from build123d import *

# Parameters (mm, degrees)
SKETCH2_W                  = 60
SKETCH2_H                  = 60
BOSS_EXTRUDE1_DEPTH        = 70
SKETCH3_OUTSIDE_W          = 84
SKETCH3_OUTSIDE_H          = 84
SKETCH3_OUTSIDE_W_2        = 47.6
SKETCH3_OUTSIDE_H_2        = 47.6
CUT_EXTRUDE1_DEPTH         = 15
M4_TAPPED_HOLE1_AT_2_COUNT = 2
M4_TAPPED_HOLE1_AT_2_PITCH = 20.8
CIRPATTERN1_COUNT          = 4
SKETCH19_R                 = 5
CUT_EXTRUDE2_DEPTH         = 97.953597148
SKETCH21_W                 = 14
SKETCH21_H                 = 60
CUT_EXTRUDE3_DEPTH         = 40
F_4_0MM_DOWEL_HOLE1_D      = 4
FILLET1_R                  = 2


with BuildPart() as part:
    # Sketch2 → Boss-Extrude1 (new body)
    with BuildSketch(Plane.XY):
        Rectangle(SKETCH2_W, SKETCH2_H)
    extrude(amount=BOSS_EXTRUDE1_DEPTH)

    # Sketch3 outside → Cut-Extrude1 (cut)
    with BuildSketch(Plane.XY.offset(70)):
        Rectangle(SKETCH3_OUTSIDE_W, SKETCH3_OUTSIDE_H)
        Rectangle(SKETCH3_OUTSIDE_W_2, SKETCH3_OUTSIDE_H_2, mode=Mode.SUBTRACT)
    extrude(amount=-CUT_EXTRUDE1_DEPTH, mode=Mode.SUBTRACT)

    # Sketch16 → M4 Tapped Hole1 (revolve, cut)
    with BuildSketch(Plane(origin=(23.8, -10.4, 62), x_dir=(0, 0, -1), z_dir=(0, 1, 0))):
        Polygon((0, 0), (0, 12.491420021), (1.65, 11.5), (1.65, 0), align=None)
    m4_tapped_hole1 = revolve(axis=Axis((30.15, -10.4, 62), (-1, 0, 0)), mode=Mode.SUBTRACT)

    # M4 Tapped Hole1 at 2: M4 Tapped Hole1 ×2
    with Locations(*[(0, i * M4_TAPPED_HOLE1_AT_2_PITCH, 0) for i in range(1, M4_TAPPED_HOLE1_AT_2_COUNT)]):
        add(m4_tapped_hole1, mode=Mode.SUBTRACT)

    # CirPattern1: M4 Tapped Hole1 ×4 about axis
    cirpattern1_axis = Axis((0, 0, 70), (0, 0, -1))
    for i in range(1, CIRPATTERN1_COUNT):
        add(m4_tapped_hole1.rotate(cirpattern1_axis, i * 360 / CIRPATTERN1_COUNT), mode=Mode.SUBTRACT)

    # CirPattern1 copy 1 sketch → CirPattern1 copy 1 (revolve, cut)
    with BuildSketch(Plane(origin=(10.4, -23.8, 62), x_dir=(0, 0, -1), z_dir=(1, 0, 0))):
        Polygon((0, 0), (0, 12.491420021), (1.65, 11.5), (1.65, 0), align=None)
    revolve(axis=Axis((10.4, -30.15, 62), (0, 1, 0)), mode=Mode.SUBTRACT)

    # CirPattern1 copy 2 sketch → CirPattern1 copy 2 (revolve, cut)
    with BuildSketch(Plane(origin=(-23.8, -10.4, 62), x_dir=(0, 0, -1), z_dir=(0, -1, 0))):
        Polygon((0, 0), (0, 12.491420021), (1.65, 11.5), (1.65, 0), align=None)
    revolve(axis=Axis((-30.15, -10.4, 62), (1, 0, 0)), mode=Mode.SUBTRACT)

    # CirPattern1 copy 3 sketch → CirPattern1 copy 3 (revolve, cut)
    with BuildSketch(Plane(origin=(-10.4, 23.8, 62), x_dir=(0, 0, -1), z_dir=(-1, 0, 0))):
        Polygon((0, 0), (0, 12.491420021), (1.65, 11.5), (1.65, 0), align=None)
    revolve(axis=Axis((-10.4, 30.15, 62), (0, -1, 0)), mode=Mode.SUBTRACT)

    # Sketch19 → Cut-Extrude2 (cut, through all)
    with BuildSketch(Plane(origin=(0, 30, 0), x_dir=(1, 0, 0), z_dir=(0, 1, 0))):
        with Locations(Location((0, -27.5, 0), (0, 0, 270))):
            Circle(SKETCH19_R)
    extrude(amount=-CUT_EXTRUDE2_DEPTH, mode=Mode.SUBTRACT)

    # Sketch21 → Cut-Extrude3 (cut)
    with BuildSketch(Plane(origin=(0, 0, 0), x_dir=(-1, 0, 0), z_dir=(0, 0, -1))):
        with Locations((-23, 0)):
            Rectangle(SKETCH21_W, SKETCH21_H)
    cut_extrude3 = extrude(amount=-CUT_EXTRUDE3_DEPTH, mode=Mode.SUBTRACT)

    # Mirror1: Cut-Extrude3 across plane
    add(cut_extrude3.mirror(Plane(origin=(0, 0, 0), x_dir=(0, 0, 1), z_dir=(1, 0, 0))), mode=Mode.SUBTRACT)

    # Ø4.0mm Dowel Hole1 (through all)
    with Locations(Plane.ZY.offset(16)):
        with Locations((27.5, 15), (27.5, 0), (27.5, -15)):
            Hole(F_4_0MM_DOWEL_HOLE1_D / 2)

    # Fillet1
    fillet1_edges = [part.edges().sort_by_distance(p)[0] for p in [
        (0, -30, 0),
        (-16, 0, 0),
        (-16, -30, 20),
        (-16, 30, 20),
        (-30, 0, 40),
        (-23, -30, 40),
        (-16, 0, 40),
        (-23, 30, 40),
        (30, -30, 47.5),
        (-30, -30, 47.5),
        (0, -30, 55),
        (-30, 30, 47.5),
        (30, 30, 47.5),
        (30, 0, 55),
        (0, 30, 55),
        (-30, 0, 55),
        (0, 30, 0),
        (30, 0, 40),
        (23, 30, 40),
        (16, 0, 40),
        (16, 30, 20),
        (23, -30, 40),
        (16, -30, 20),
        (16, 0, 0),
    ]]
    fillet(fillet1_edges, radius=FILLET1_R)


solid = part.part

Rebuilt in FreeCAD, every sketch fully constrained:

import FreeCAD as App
import Part
import Sketcher

V = App.Vector
Q = App.Units.Quantity


def edges_at(feature, points):
    """Names of the edges that pass closest to the given points."""
    edges = feature.Shape.Edges
    near = lambda p: min(range(len(edges)), key=lambda i: edges[i].distToShape(Part.Vertex(*p))[0])
    return sorted({f"Edge{near(p) + 1}" for p in points})

doc = App.newDocument("Part")
body = doc.addObject("PartDesign::Body", "Body")

# Sketch on XY plane
sketch1 = body.newObject("Sketcher::SketchObject", "Sketch")
sketch1.AttachmentSupport = (doc.getObject("XY_Plane"), [""])
sketch1.MapMode = "FlatFace"
sketch1.addGeometry(Part.LineSegment(V(-30, 30, 0), V(-30, -30, 0)), False)
sketch1.addGeometry(Part.LineSegment(V(-30, -30, 0), V(30, -30, 0)), False)
sketch1.addGeometry(Part.LineSegment(V(30, -30, 0), V(30, 30, 0)), False)
sketch1.addGeometry(Part.LineSegment(V(30, 30, 0), V(-30, 30, 0)), False)
sketch1.addConstraint(Sketcher.Constraint("Coincident", 0, 2, 1, 1))
sketch1.addConstraint(Sketcher.Constraint("Coincident", 1, 2, 2, 1))
sketch1.addConstraint(Sketcher.Constraint("Coincident", 2, 2, 3, 1))
sketch1.addConstraint(Sketcher.Constraint("Coincident", 3, 2, 0, 1))
sketch1.addConstraint(Sketcher.Constraint("Vertical", 0))
sketch1.addConstraint(Sketcher.Constraint("Horizontal", 1))
sketch1.addConstraint(Sketcher.Constraint("Vertical", 2))
sketch1.addConstraint(Sketcher.Constraint("Horizontal", 3))
sketch1.addConstraint(Sketcher.Constraint("Symmetric", 0, 2, 2, 2, -1, 1))
sketch1.addConstraint(Sketcher.Constraint("Equal", 3, 0))
sketch1.addConstraint(Sketcher.Constraint("DistanceX", 1, 1, 1, 2, 60.0))
pad1 = body.newObject("PartDesign::Pad", "Pad")
pad1.Profile = sketch1
pad1.Length = 70

# Sketch on XY plane
sketch2 = body.newObject("Sketcher::SketchObject", "Sketch001")
sketch2.AttachmentSupport = (doc.getObject("XY_Plane"), [""])
sketch2.MapMode = "FlatFace"
sketch2.AttachmentOffset = App.Placement(V(0, 0, 70), App.Rotation())
sketch2.addGeometry(Part.LineSegment(V(-42, 42, 0), V(-42, -42, 0)), False)
sketch2.addGeometry(Part.LineSegment(V(-42, -42, 0), V(42, -42, 0)), False)
sketch2.addGeometry(Part.LineSegment(V(42, -42, 0), V(42, 42, 0)), False)
sketch2.addGeometry(Part.LineSegment(V(42, 42, 0), V(-42, 42, 0)), False)
sketch2.addGeometry(Part.LineSegment(V(24, -24, 0), V(-24, -24, 0)), False)
sketch2.addGeometry(Part.LineSegment(V(-24, -24, 0), V(-24, 24, 0)), False)
sketch2.addGeometry(Part.LineSegment(V(-24, 24, 0), V(24, 24, 0)), False)
sketch2.addGeometry(Part.LineSegment(V(24, 24, 0), V(24, -24, 0)), False)
sketch2.addConstraint(Sketcher.Constraint("Coincident", 0, 2, 1, 1))
sketch2.addConstraint(Sketcher.Constraint("Coincident", 1, 2, 2, 1))
sketch2.addConstraint(Sketcher.Constraint("Coincident", 2, 2, 3, 1))
sketch2.addConstraint(Sketcher.Constraint("Coincident", 3, 2, 0, 1))
sketch2.addConstraint(Sketcher.Constraint("Coincident", 4, 2, 5, 1))
sketch2.addConstraint(Sketcher.Constraint("Coincident", 5, 2, 6, 1))
sketch2.addConstraint(Sketcher.Constraint("Coincident", 6, 2, 7, 1))
sketch2.addConstraint(Sketcher.Constraint("Coincident", 7, 2, 4, 1))
sketch2.addConstraint(Sketcher.Constraint("Vertical", 0))
sketch2.addConstraint(Sketcher.Constraint("Horizontal", 1))
sketch2.addConstraint(Sketcher.Constraint("Vertical", 2))
sketch2.addConstraint(Sketcher.Constraint("Horizontal", 3))
sketch2.addConstraint(Sketcher.Constraint("Horizontal", 4))
sketch2.addConstraint(Sketcher.Constraint("Vertical", 5))
sketch2.addConstraint(Sketcher.Constraint("Horizontal", 6))
sketch2.addConstraint(Sketcher.Constraint("Vertical", 7))
sketch2.addConstraint(Sketcher.Constraint("Symmetric", 0, 2, 2, 2, -1, 1))
sketch2.addConstraint(Sketcher.Constraint("Symmetric", 4, 2, 6, 2, -1, 1))
sketch2.addConstraint(Sketcher.Constraint("Equal", 3, 0))
sketch2.addConstraint(Sketcher.Constraint("Equal", 6, 5))
sketch2.addConstraint(Sketcher.Constraint("DistanceX", 1, 1, 1, 2, 84.0))
sketch2.addConstraint(Sketcher.Constraint("DistanceX", 4, 2, 4, 1, 47.6))
pocket1 = body.newObject("PartDesign::Pocket", "Pocket")
pocket1.Profile = sketch2
pocket1.Length = 15

# Sketch on XZ plane
sketch3 = body.newObject("Sketcher::SketchObject", "Sketch002")
sketch3.AttachmentSupport = (doc.getObject("XZ_Plane"), [""])
sketch3.MapMode = "FlatFace"
sketch3.AttachmentOffset = App.Placement(V(0, 0, 10.4), App.Rotation())
sketch3.addGeometry(Part.LineSegment(V(11.3, 62, 0), V(23.8, 62, 0)), False)
sketch3.addGeometry(Part.LineSegment(V(23.8, 62, 0), V(23.8, 60.4, 0)), False)
sketch3.addGeometry(Part.LineSegment(V(23.8, 60.4, 0), V(12.3, 60.4, 0)), False)
sketch3.addGeometry(Part.LineSegment(V(12.3, 60.4, 0), V(11.3, 62, 0)), False)
sketch3.addGeometry(Part.LineSegment(V(23.8, 62, 0), V(11.3, 62, 0)), True)  # axis
sketch3.addConstraint(Sketcher.Constraint("Coincident", 0, 2, 1, 1))
sketch3.addConstraint(Sketcher.Constraint("Coincident", 1, 2, 2, 1))
sketch3.addConstraint(Sketcher.Constraint("Coincident", 2, 2, 3, 1))
sketch3.addConstraint(Sketcher.Constraint("Coincident", 3, 2, 0, 1))
sketch3.addConstraint(Sketcher.Constraint("Horizontal", 0))
sketch3.addConstraint(Sketcher.Constraint("Vertical", 1))
sketch3.addConstraint(Sketcher.Constraint("Horizontal", 2))
sketch3.addConstraint(Sketcher.Constraint("Horizontal", 4))
sketch3.addConstraint(Sketcher.Constraint("Coincident", 4, 1, 0, 2))
sketch3.addConstraint(Sketcher.Constraint("Equal", 0, 4))
sketch3.addConstraint(Sketcher.Constraint("Angle", 3, Q("121 deg")))
sketch3.addConstraint(Sketcher.Constraint("DistanceX", 2, 2, 2, 1, 11.5))
sketch3.addConstraint(Sketcher.Constraint("DistanceY", -1, 1, 0, 2, 62.0))
sketch3.addConstraint(Sketcher.Constraint("DistanceY", 1, 2, 1, 1, 1.65))
sketch3.addConstraint(Sketcher.Constraint("DistanceX", -1, 1, 0, 2, 23.8))
groove = body.newObject("PartDesign::Groove", "Groove")
groove.Profile = sketch3
groove.ReferenceAxis = (sketch3, ["Axis0"])
groove.Angle = 360
doc.recompute()

linearpattern = body.newObject("PartDesign::LinearPattern", "LinearPattern")
linearpattern.Originals = [groove]
linearpattern.Direction = (doc.getObject("Y_Axis"), [""])
linearpattern.Mode = "offset"
linearpattern.Offset = 20.8
linearpattern.Occurrences = 2
body.Tip = linearpattern
doc.recompute()

polarpattern = body.newObject("PartDesign::PolarPattern", "PolarPattern")
polarpattern.Originals = [groove]
polarpattern.Axis = (doc.getObject("Z_Axis"), [""])
polarpattern.Angle = 360
polarpattern.Occurrences = 4
body.Tip = polarpattern

# Sketch on YZ plane
sketch4 = body.newObject("Sketcher::SketchObject", "Sketch003")
sketch4.AttachmentSupport = (doc.getObject("YZ_Plane"), [""])
sketch4.MapMode = "FlatFace"
sketch4.AttachmentOffset = App.Placement(V(0, 0, 10.4), App.Rotation())
sketch4.addGeometry(Part.LineSegment(V(-11.3, 62, 0), V(-23.8, 62, 0)), False)
sketch4.addGeometry(Part.LineSegment(V(-23.8, 62, 0), V(-23.8, 60.4, 0)), False)
sketch4.addGeometry(Part.LineSegment(V(-23.8, 60.4, 0), V(-12.3, 60.4, 0)), False)
sketch4.addGeometry(Part.LineSegment(V(-12.3, 60.4, 0), V(-11.3, 62, 0)), False)
sketch4.addGeometry(Part.LineSegment(V(-23.8, 62, 0), V(-11.3, 62, 0)), True)  # axis
sketch4.addConstraint(Sketcher.Constraint("Coincident", 0, 2, 1, 1))
sketch4.addConstraint(Sketcher.Constraint("Coincident", 1, 2, 2, 1))
sketch4.addConstraint(Sketcher.Constraint("Coincident", 2, 2, 3, 1))
sketch4.addConstraint(Sketcher.Constraint("Coincident", 3, 2, 0, 1))
sketch4.addConstraint(Sketcher.Constraint("Horizontal", 0))
sketch4.addConstraint(Sketcher.Constraint("Vertical", 1))
sketch4.addConstraint(Sketcher.Constraint("Horizontal", 2))
sketch4.addConstraint(Sketcher.Constraint("Horizontal", 4))
sketch4.addConstraint(Sketcher.Constraint("Coincident", 4, 1, 0, 2))
sketch4.addConstraint(Sketcher.Constraint("Equal", 0, 4))
sketch4.addConstraint(Sketcher.Constraint("Angle", 3, Q("59 deg")))
sketch4.addConstraint(Sketcher.Constraint("DistanceX", 2, 1, 2, 2, 11.5))
sketch4.addConstraint(Sketcher.Constraint("DistanceY", -1, 1, 0, 2, 62.0))
sketch4.addConstraint(Sketcher.Constraint("DistanceY", 1, 2, 1, 1, 1.65))
sketch4.addConstraint(Sketcher.Constraint("DistanceX", 0, 2, -1, 1, 23.8))
groove2 = body.newObject("PartDesign::Groove", "Groove001")
groove2.Profile = sketch4
groove2.ReferenceAxis = (sketch4, ["Axis0"])
groove2.Angle = 360

# Sketch on XZ plane
sketch5 = body.newObject("Sketcher::SketchObject", "Sketch004")
sketch5.AttachmentSupport = (doc.getObject("XZ_Plane"), [""])
sketch5.MapMode = "FlatFace"
sketch5.AttachmentOffset = App.Placement(V(0, 0, 10.4), App.Rotation())
sketch5.addGeometry(Part.LineSegment(V(-11.3, 62, 0), V(-23.8, 62, 0)), False)
sketch5.addGeometry(Part.LineSegment(V(-23.8, 62, 0), V(-23.8, 60.4, 0)), False)
sketch5.addGeometry(Part.LineSegment(V(-23.8, 60.4, 0), V(-12.3, 60.4, 0)), False)
sketch5.addGeometry(Part.LineSegment(V(-12.3, 60.4, 0), V(-11.3, 62, 0)), False)
sketch5.addGeometry(Part.LineSegment(V(-23.8, 62, 0), V(-11.3, 62, 0)), True)  # axis
sketch5.addConstraint(Sketcher.Constraint("Coincident", 0, 2, 1, 1))
sketch5.addConstraint(Sketcher.Constraint("Coincident", 1, 2, 2, 1))
sketch5.addConstraint(Sketcher.Constraint("Coincident", 2, 2, 3, 1))
sketch5.addConstraint(Sketcher.Constraint("Coincident", 3, 2, 0, 1))
sketch5.addConstraint(Sketcher.Constraint("Horizontal", 0))
sketch5.addConstraint(Sketcher.Constraint("Vertical", 1))
sketch5.addConstraint(Sketcher.Constraint("Horizontal", 2))
sketch5.addConstraint(Sketcher.Constraint("Horizontal", 4))
sketch5.addConstraint(Sketcher.Constraint("Coincident", 4, 1, 0, 2))
sketch5.addConstraint(Sketcher.Constraint("Equal", 0, 4))
sketch5.addConstraint(Sketcher.Constraint("Angle", 3, Q("59 deg")))
sketch5.addConstraint(Sketcher.Constraint("DistanceX", 2, 1, 2, 2, 11.5))
sketch5.addConstraint(Sketcher.Constraint("DistanceY", -1, 1, 0, 2, 62.0))
sketch5.addConstraint(Sketcher.Constraint("DistanceY", 1, 2, 1, 1, 1.65))
sketch5.addConstraint(Sketcher.Constraint("DistanceX", 0, 2, -1, 1, 23.8))
groove3 = body.newObject("PartDesign::Groove", "Groove002")
groove3.Profile = sketch5
groove3.ReferenceAxis = (sketch5, ["Axis0"])
groove3.Angle = 360

# Sketch on YZ plane
sketch6 = body.newObject("Sketcher::SketchObject", "Sketch005")
sketch6.AttachmentSupport = (doc.getObject("YZ_Plane"), [""])
sketch6.MapMode = "FlatFace"
sketch6.AttachmentOffset = App.Placement(V(0, 0, -10.4), App.Rotation())
sketch6.addGeometry(Part.LineSegment(V(11.3, 62, 0), V(23.8, 62, 0)), False)
sketch6.addGeometry(Part.LineSegment(V(23.8, 62, 0), V(23.8, 60.4, 0)), False)
sketch6.addGeometry(Part.LineSegment(V(23.8, 60.4, 0), V(12.3, 60.4, 0)), False)
sketch6.addGeometry(Part.LineSegment(V(12.3, 60.4, 0), V(11.3, 62, 0)), False)
sketch6.addGeometry(Part.LineSegment(V(23.8, 62, 0), V(11.3, 62, 0)), True)  # axis
sketch6.addConstraint(Sketcher.Constraint("Coincident", 0, 2, 1, 1))
sketch6.addConstraint(Sketcher.Constraint("Coincident", 1, 2, 2, 1))
sketch6.addConstraint(Sketcher.Constraint("Coincident", 2, 2, 3, 1))
sketch6.addConstraint(Sketcher.Constraint("Coincident", 3, 2, 0, 1))
sketch6.addConstraint(Sketcher.Constraint("Horizontal", 0))
sketch6.addConstraint(Sketcher.Constraint("Vertical", 1))
sketch6.addConstraint(Sketcher.Constraint("Horizontal", 2))
sketch6.addConstraint(Sketcher.Constraint("Horizontal", 4))
sketch6.addConstraint(Sketcher.Constraint("Coincident", 4, 1, 0, 2))
sketch6.addConstraint(Sketcher.Constraint("Equal", 0, 4))
sketch6.addConstraint(Sketcher.Constraint("Angle", 3, Q("121 deg")))
sketch6.addConstraint(Sketcher.Constraint("DistanceX", 2, 2, 2, 1, 11.5))
sketch6.addConstraint(Sketcher.Constraint("DistanceY", -1, 1, 0, 2, 62.0))
sketch6.addConstraint(Sketcher.Constraint("DistanceY", 1, 2, 1, 1, 1.65))
sketch6.addConstraint(Sketcher.Constraint("DistanceX", -1, 1, 0, 2, 23.8))
groove4 = body.newObject("PartDesign::Groove", "Groove003")
groove4.Profile = sketch6
groove4.ReferenceAxis = (sketch6, ["Axis0"])
groove4.Angle = 360

# Sketch on XZ plane
sketch7 = body.newObject("Sketcher::SketchObject", "Sketch006")
sketch7.AttachmentSupport = (doc.getObject("XZ_Plane"), [""])
sketch7.MapMode = "FlatFace"
sketch7.AttachmentOffset = App.Placement(V(0, 0, -30), App.Rotation())
sketch7.addGeometry(Part.Circle(V(0, 28, 0), V(0, 0, 1), 5), False)
sketch7.addConstraint(Sketcher.Constraint("PointOnObject", 0, 3, -2))
sketch7.addConstraint(Sketcher.Constraint("Diameter", 0, 10.0))
sketch7.addConstraint(Sketcher.Constraint("DistanceY", -1, 1, 0, 3, 27.5))
pocket2 = body.newObject("PartDesign::Pocket", "Pocket001")
pocket2.Profile = sketch7
pocket2.Type = "ThroughAll"
pocket2.Reversed = True

# Sketch on XY plane
sketch8 = body.newObject("Sketcher::SketchObject", "Sketch007")
sketch8.AttachmentSupport = (doc.getObject("XY_Plane"), [""])
sketch8.MapMode = "FlatFace"
sketch8.addGeometry(Part.LineSegment(V(30, 30, 0), V(30, -30, 0)), False)
sketch8.addGeometry(Part.LineSegment(V(30, -30, 0), V(16, -30, 0)), False)
sketch8.addGeometry(Part.LineSegment(V(16, -30, 0), V(16, 30, 0)), False)
sketch8.addGeometry(Part.LineSegment(V(16, 30, 0), V(30, 30, 0)), False)
sketch8.addConstraint(Sketcher.Constraint("Coincident", 0, 2, 1, 1))
sketch8.addConstraint(Sketcher.Constraint("Coincident", 1, 2, 2, 1))
sketch8.addConstraint(Sketcher.Constraint("Coincident", 2, 2, 3, 1))
sketch8.addConstraint(Sketcher.Constraint("Coincident", 3, 2, 0, 1))
sketch8.addConstraint(Sketcher.Constraint("Vertical", 0))
sketch8.addConstraint(Sketcher.Constraint("Horizontal", 1))
sketch8.addConstraint(Sketcher.Constraint("Vertical", 2))
sketch8.addConstraint(Sketcher.Constraint("Horizontal", 3))
sketch8.addConstraint(Sketcher.Constraint("DistanceX", 1, 2, 1, 1, 14.0))
sketch8.addConstraint(Sketcher.Constraint("DistanceY", 0, 2, 0, 1, 60.0))
sketch8.addConstraint(Sketcher.Constraint("DistanceX", -1, 1, 0, 2, 30.0))
sketch8.addConstraint(Sketcher.Constraint("DistanceY", 0, 2, -1, 1, 30.0))
pocket3 = body.newObject("PartDesign::Pocket", "Pocket002")
pocket3.Profile = sketch8
pocket3.Length = 40
pocket3.Reversed = True
doc.recompute()

mirrored = body.newObject("PartDesign::Mirrored", "Mirrored")
mirrored.Originals = [pocket3]
mirrored.MirrorPlane = (doc.getObject("YZ_Plane"), [""])
body.Tip = mirrored

# Sketch on YZ plane
sketch9 = body.newObject("Sketcher::SketchObject", "Sketch008")
sketch9.AttachmentSupport = (doc.getObject("YZ_Plane"), [""])
sketch9.MapMode = "FlatFace"
sketch9.AttachmentOffset = App.Placement(V(0, 0, -16), App.Rotation())
sketch9.addGeometry(Part.Circle(V(15, 27.5, 0), V(0, 0, 1), 2), False)
sketch9.addGeometry(Part.Circle(V(0, 27.5, 0), V(0, 0, 1), 2), False)
sketch9.addGeometry(Part.Circle(V(-15, 27.5, 0), V(0, 0, 1), 2), False)
sketch9.addConstraint(Sketcher.Constraint("Equal", 0, 1))
sketch9.addConstraint(Sketcher.Constraint("Equal", 1, 2))
sketch9.addConstraint(Sketcher.Constraint("Symmetric", 0, 3, 2, 3, -2))
sketch9.addConstraint(Sketcher.Constraint("PointOnObject", 1, 3, -2))
sketch9.addConstraint(Sketcher.Constraint("Horizontal", 0, 3, 1, 3))
sketch9.addConstraint(Sketcher.Constraint("Diameter", 0, 4.0))
sketch9.addConstraint(Sketcher.Constraint("DistanceX", -1, 1, 0, 3, 15.0))
sketch9.addConstraint(Sketcher.Constraint("DistanceY", -1, 1, 0, 3, 27.5))
doc.recompute()
hole = body.newObject("PartDesign::Hole", "Hole")
hole.Profile = sketch9
hole.ThreadType = "None"
hole.Diameter = 4
hole.DepthType = "ThroughAll"
hole.Reversed = True
doc.recompute()

fillet = body.newObject("PartDesign::Fillet", "Fillet")
fillet.Base = (hole, edges_at(hole, [
    (0, -30, 0),
    (-16, 0, 0),
    (-16, -30, 20),
    (-16, 30, 20),
    (-30, 0, 40),
    (-23, -30, 40),
    (-16, 0, 40),
    (-23, 30, 40),
    (30, -30, 47.5),
    (-30, -30, 47.5),
    (0, -30, 55),
    (-30, 30, 47.5),
    (30, 30, 47.5),
    (30, 0, 55),
    (0, 30, 55),
    (-30, 0, 55),
    (0, 30, 0),
    (30, 0, 40),
    (23, 30, 40),
    (16, 0, 40),
    (16, 30, 20),
    (23, -30, 40),
    (16, -30, 20),
    (16, 0, 0),
]))
fillet.Radius = 2

doc.recompute()
